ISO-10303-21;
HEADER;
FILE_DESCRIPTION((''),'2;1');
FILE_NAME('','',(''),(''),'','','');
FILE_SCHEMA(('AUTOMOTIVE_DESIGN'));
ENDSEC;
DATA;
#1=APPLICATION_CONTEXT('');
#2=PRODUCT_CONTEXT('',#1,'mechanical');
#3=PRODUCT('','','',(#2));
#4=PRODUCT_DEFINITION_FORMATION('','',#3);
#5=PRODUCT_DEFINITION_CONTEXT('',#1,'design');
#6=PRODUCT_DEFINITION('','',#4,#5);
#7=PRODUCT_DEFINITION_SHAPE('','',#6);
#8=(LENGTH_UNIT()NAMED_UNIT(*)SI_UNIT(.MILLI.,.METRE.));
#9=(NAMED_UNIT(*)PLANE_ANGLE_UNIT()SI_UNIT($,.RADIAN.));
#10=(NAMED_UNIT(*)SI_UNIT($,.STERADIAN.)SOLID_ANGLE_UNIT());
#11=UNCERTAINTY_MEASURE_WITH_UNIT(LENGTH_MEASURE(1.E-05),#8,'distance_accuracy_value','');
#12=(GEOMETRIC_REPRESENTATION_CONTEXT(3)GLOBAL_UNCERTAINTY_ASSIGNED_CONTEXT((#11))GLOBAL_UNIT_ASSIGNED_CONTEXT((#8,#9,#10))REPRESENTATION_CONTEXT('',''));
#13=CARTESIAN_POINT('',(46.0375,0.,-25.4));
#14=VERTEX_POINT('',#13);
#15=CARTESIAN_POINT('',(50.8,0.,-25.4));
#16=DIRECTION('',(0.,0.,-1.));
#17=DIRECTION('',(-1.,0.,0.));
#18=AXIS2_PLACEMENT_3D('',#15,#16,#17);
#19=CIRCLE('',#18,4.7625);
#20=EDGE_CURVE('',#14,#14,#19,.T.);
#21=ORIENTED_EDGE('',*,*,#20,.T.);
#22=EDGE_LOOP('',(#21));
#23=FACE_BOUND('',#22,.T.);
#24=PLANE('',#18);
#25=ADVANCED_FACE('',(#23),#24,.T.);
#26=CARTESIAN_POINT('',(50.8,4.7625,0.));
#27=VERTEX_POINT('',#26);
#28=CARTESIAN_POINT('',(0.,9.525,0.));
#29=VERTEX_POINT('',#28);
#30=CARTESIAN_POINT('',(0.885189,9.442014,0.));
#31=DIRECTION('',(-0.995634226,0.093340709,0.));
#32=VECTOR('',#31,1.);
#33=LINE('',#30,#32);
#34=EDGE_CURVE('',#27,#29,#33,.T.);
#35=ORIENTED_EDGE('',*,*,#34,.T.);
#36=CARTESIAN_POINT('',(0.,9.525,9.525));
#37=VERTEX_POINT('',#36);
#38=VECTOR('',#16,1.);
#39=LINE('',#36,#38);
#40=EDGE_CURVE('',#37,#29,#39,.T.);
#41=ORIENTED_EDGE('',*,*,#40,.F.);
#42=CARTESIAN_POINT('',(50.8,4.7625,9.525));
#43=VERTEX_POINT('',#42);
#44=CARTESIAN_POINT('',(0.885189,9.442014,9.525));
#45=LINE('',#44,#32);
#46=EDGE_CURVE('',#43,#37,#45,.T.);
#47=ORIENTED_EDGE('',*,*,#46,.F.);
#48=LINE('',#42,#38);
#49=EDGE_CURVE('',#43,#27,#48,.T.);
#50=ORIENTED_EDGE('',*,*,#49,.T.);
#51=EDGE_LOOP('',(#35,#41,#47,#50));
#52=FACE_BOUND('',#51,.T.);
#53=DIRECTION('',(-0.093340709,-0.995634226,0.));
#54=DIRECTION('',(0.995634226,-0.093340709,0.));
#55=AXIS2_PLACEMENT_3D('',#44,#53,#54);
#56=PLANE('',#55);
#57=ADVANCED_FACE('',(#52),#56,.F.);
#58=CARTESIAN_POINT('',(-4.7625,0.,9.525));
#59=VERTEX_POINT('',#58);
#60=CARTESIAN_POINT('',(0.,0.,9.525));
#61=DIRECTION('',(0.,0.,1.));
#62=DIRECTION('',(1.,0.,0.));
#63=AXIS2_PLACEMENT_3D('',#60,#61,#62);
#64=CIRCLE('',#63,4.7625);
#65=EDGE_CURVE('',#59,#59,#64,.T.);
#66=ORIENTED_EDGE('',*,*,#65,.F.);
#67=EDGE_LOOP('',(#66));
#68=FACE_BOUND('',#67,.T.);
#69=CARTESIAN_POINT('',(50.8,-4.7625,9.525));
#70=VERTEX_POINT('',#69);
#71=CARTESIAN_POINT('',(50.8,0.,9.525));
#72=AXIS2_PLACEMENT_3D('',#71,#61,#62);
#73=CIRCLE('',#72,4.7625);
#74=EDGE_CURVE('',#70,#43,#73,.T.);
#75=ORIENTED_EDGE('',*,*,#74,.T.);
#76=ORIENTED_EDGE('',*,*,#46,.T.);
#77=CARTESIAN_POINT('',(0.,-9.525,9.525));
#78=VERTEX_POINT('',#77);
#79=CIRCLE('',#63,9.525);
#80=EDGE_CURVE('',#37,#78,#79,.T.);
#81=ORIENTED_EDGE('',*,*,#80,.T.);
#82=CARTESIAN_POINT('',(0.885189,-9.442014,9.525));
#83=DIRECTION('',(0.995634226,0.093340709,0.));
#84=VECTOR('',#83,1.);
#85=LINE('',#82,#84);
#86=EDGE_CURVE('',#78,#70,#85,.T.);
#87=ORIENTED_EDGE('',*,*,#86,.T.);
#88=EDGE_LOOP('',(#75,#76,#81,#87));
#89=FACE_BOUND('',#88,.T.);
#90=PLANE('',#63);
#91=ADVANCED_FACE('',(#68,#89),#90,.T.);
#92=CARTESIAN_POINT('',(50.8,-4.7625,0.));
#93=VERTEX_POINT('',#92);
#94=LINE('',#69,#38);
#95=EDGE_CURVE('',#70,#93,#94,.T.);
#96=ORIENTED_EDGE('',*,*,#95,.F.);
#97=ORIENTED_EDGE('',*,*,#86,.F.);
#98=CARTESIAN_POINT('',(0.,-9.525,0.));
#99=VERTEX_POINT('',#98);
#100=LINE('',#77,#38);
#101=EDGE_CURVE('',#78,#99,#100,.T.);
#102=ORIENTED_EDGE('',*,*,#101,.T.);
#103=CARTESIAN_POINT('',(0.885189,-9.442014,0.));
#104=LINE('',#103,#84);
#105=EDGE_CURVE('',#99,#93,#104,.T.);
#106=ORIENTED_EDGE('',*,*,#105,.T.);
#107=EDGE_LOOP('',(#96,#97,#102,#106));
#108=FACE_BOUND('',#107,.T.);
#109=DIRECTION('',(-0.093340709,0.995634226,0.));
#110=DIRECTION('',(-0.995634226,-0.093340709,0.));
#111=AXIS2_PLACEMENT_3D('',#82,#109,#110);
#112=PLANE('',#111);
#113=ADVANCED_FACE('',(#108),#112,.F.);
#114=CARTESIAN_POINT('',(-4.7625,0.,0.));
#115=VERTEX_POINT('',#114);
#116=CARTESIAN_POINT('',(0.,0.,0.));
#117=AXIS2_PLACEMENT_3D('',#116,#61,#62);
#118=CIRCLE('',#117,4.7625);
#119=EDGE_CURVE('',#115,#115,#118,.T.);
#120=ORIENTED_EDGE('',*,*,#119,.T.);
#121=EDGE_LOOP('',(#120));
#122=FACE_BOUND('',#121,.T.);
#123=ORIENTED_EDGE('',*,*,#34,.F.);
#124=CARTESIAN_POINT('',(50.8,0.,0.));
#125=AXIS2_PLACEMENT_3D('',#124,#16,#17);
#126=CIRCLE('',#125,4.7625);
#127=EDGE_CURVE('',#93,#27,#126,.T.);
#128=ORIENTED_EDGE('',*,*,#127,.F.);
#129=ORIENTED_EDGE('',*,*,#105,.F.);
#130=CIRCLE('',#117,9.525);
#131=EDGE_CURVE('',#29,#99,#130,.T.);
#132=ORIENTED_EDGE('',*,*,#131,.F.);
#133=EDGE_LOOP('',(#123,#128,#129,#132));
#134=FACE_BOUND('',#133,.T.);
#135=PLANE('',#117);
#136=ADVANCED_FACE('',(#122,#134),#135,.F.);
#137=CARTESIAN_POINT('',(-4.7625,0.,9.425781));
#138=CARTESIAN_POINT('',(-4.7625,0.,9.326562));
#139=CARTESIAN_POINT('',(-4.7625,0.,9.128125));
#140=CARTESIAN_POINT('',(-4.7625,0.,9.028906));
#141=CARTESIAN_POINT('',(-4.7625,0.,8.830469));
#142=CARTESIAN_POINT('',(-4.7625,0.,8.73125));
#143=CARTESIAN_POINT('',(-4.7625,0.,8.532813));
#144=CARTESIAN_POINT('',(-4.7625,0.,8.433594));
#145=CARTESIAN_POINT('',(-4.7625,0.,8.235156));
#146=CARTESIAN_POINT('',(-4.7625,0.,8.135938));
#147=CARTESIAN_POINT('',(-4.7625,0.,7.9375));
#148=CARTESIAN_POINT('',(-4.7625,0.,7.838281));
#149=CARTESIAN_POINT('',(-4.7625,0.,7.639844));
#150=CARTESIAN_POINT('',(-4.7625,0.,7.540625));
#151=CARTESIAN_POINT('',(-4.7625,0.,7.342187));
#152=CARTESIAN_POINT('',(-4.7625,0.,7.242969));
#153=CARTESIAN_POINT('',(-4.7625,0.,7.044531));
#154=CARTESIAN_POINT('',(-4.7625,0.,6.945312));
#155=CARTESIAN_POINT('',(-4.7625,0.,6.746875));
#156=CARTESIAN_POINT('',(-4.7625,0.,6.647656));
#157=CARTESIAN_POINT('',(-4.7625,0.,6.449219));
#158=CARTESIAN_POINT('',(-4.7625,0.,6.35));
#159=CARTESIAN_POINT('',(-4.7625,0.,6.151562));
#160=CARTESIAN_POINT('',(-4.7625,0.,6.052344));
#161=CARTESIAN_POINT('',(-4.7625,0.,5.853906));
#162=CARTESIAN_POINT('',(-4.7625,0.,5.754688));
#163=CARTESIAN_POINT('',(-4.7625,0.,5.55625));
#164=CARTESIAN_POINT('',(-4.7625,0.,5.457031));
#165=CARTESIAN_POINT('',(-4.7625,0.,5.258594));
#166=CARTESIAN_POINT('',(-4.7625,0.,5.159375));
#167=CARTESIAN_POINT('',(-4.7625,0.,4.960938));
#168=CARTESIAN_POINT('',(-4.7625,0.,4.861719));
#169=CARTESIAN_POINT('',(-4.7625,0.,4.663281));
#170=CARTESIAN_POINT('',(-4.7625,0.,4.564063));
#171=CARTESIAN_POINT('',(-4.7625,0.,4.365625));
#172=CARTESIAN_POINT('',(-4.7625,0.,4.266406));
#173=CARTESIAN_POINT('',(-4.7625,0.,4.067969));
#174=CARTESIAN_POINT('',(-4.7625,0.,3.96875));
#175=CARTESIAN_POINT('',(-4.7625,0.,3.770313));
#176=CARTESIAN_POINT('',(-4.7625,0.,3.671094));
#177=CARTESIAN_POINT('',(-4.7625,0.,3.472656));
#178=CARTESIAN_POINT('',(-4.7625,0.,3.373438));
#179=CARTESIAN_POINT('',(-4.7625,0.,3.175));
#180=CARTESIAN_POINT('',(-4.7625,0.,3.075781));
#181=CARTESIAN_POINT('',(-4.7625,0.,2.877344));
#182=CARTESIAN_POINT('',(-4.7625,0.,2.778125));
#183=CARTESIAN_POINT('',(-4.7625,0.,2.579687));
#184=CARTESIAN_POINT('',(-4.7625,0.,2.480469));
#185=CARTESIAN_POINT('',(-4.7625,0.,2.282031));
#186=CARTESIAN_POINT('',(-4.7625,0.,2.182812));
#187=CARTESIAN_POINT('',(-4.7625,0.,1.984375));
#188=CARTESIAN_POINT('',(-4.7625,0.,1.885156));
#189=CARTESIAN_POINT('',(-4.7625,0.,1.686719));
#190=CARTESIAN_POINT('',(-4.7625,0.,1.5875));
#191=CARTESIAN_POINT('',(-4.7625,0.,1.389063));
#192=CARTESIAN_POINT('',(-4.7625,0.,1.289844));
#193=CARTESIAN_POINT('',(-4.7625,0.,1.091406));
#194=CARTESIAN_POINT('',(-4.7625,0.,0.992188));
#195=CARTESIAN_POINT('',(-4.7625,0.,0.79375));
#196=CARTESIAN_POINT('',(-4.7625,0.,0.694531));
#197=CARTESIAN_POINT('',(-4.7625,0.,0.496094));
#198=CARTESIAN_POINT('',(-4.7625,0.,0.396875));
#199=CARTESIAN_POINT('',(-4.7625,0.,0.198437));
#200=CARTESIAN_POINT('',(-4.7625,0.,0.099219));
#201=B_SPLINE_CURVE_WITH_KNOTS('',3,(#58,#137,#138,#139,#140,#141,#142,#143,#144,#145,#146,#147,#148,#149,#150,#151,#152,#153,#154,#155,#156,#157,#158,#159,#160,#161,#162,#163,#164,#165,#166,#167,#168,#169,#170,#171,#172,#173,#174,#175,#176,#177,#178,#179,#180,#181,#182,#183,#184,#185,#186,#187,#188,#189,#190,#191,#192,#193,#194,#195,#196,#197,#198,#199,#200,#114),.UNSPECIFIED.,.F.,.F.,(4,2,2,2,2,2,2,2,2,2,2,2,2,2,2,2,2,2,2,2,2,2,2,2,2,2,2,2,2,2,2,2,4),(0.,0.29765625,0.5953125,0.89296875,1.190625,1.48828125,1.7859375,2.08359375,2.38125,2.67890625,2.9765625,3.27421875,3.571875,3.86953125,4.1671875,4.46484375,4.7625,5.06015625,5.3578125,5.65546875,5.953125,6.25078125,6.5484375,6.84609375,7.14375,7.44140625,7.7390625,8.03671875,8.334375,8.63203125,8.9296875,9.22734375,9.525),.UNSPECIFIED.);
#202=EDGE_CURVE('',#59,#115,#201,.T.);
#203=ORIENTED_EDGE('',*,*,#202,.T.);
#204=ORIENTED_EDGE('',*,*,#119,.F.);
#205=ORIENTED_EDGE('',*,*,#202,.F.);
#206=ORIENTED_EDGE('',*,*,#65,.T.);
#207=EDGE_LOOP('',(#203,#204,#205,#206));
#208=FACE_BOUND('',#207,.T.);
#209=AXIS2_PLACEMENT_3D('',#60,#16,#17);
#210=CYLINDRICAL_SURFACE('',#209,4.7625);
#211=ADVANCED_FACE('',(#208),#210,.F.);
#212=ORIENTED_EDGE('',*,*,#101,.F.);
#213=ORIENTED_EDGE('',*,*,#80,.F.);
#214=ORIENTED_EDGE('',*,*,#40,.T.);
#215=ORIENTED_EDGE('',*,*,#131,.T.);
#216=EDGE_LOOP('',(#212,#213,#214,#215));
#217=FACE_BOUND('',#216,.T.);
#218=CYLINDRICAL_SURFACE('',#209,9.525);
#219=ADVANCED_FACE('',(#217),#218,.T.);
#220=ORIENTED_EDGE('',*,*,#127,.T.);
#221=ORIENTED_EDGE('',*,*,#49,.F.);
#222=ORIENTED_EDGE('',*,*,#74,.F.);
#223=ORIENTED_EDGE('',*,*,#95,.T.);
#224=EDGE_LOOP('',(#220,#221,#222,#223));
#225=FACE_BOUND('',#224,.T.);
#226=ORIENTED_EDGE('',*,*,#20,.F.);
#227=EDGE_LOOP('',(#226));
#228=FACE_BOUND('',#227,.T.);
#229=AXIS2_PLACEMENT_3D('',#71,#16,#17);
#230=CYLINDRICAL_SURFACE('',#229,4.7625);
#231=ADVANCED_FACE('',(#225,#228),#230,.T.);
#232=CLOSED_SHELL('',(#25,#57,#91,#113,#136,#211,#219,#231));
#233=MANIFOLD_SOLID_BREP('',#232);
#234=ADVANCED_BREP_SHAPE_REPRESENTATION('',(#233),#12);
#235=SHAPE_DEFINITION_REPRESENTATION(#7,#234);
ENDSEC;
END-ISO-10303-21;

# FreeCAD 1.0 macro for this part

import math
import FreeCAD as App
import Part
import Sketcher
from FreeCAD import Vector
Q = App.Units.Quantity

doc = App.newDocument("Part")
params = doc.addObject("Spreadsheet::Sheet", "Params")
for row, (alias, value) in enumerate([
    ("sketch1_diameter", "0.375 in"),
    ("sketch1_radius", "0.375 in"),
    ("pad1_length", "0.375 in"),
    ("sketch2_diameter", "0.375 in"),
    ("pad2_length", "1 in"),
], start=1):
    params.set(f"A{row}", alias)
    params.set(f"B{row}", "=" + value)
    params.setAlias(f"B{row}", alias)

body = doc.addObject("PartDesign::Body", "Body")

sketch1 = body.newObject("Sketcher::SketchObject", "Sketch")
sketch1.AttachmentSupport = (doc.getObject("XY_Plane"), [""])
sketch1.MapMode = "FlatFace"
sketch1.addGeometry([
    Part.ArcOfCircle(Part.Circle(Vector(0, 0, 0), Vector(0, 0, 1), 9.5), math.radians(90), math.radians(270)),
    Part.LineSegment(Vector(0, -9.5, 0), Vector(1.8, -9.4, 0)),
    Part.LineSegment(Vector(1.8, -9.4, 0), Vector(50.8, -4.8, 0)),
    Part.ArcOfCircle(Part.Circle(Vector(50.8, 0, 0), Vector(0, 0, 1), 4.8), math.radians(-90), math.radians(90)),
    Part.LineSegment(Vector(50.8, 4.8, 0), Vector(1.8, 9.4, 0)),
    Part.LineSegment(Vector(1.8, 9.4, 0), Vector(0, 9.5, 0)),
    Part.Circle(Vector(0, 0, 0), Vector(0, 0, 1), 4.8),
], False)
sketch1.addConstraint([
    Sketcher.Constraint("Coincident", 0, 2, 1, 1),
    Sketcher.Constraint("Coincident", 1, 2, 2, 1),
    Sketcher.Constraint("Coincident", 2, 2, 3, 1),
    Sketcher.Constraint("Coincident", 3, 2, 4, 1),
    Sketcher.Constraint("Coincident", 4, 2, 5, 1),
    Sketcher.Constraint("Coincident", 5, 2, 0, 1),
    Sketcher.Constraint("Coincident", 0, 3, -1, 1),
    Sketcher.Constraint("Coincident", 6, 3, -1, 1),
    Sketcher.Constraint("Equal", 3, 6),
    Sketcher.Constraint("Symmetric", 2, 2, 3, 2, -1),
    Sketcher.Constraint("Symmetric", 1, 2, 4, 2, -1),
    Sketcher.Constraint("PointOnObject", 0, 2, -2),
    Sketcher.Constraint("PointOnObject", 5, 2, -2),
    Sketcher.Constraint("Parallel", 1, 2),
    Sketcher.Constraint("Vertical", 3, 3, 2, 2),
    Sketcher.Constraint("Diameter", 6, Q("0.375 in")),
    Sketcher.Constraint("DistanceX", -1, 1, 3, 3, Q("2 in")),
    Sketcher.Constraint("Radius", 0, Q("0.375 in")),
    Sketcher.Constraint("DistanceX", -1, 1, 1, 2, Q("0.0696999 in")),
])
sketch1.setExpression("Constraints[15]", "Params.sketch1_diameter")
sketch1.setExpression("Constraints[17]", "Params.sketch1_radius")
pad1 = body.newObject("PartDesign::Pad", "Pad")
pad1.Profile = sketch1
pad1.setExpression("Length", "Params.pad1_length")

sketch2 = body.newObject("Sketcher::SketchObject", "Sketch001")
sketch2.AttachmentSupport = (doc.getObject("XY_Plane"), [""])
sketch2.MapMode = "FlatFace"
sketch2.AttachmentOffset = App.Placement(Vector(0, 0, -1 * 25.4), App.Rotation())
sketch2.addGeometry(Part.Circle(Vector(50.8, 0, 0), Vector(0, 0, 1), 4.8), False)
sketch2.addConstraint([
    Sketcher.Constraint("PointOnObject", 0, 3, -1),
    Sketcher.Constraint("Diameter", 0, Q("0.375 in")),
    Sketcher.Constraint("DistanceX", -1, 1, 0, 3, Q("2 in")),
])
sketch2.setExpression("Constraints[1]", "Params.sketch2_diameter")
pad2 = body.newObject("PartDesign::Pad", "Pad001")
pad2.Profile = sketch2
pad2.setExpression("Length", "Params.pad2_length")

doc.recompute()
